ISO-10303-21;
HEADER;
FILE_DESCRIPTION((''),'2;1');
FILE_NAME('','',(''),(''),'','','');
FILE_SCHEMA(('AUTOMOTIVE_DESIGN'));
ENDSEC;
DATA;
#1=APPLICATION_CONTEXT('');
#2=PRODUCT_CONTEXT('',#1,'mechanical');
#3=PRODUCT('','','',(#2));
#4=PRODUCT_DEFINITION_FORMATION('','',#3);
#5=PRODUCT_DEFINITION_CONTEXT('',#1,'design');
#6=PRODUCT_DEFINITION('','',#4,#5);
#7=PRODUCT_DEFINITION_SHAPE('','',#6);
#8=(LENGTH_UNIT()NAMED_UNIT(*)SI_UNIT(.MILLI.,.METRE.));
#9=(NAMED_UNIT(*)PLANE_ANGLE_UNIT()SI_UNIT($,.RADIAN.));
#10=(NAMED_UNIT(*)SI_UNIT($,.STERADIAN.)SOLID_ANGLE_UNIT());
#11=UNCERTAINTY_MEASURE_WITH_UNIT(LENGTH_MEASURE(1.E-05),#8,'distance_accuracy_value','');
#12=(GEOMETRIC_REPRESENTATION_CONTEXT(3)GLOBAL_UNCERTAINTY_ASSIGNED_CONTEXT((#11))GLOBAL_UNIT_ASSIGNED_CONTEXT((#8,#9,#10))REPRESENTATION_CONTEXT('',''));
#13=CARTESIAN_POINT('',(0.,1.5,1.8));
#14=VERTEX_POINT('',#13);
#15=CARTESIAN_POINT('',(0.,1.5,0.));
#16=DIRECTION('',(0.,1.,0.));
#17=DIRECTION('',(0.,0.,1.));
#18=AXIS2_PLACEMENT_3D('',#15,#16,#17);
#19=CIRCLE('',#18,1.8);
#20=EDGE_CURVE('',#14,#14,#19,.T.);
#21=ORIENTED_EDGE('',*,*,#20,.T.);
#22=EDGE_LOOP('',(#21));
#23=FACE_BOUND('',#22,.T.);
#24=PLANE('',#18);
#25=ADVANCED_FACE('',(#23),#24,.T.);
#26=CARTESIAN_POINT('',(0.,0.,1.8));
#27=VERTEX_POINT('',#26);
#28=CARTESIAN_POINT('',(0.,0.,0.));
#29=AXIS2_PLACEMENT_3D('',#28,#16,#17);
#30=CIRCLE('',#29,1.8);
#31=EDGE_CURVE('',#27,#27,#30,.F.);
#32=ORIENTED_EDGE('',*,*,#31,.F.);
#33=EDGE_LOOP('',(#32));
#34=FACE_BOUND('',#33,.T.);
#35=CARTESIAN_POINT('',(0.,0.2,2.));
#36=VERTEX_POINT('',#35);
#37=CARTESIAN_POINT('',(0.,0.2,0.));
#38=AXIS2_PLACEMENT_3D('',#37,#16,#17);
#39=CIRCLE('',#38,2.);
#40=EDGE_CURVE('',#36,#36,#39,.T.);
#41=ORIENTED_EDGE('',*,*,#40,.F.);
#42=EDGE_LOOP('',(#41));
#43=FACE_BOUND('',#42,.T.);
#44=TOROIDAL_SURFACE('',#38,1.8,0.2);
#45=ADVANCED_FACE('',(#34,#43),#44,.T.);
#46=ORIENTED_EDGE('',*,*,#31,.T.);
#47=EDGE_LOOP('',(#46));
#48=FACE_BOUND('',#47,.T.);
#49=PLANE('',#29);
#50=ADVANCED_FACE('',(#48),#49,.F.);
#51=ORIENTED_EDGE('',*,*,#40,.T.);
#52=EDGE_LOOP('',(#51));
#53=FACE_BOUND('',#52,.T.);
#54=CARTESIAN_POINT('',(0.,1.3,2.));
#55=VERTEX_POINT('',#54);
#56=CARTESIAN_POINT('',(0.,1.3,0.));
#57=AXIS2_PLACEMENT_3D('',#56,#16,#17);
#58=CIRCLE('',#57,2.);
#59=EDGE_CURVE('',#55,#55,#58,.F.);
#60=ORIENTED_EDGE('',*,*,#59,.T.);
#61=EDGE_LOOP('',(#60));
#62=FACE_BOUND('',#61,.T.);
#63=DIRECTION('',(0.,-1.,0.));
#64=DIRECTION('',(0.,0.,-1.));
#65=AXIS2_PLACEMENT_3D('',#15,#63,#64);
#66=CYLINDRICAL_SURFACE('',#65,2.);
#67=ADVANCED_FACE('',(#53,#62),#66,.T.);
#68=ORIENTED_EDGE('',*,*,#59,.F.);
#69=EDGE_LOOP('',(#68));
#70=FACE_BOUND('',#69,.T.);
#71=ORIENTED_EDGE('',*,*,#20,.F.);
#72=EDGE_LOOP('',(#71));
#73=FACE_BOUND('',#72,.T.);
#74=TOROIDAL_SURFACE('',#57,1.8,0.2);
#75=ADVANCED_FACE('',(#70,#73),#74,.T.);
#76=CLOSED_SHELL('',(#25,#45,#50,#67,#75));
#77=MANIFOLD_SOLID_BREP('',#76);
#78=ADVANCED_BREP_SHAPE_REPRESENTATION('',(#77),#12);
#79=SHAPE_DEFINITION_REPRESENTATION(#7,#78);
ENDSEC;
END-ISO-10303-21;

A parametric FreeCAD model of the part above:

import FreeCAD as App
import Part
import Sketcher
from FreeCAD import Vector


def edges_at(feature, points):
    """Names of the edges that pass closest to the given points."""
    edges = feature.Shape.Edges
    near = lambda p: min(range(len(edges)), key=lambda i: edges[i].distToShape(Part.Vertex(*p))[0])
    return sorted({f"Edge{near(p) + 1}" for p in points})

doc = App.newDocument("Part")
body = doc.addObject("PartDesign::Body", "Body")

sketch1 = doc.addObject("Sketcher::SketchObject", "Sketch")
body.addObject(sketch1)
sketch1.AttachmentSupport = (doc.XZ_Plane, [""])
sketch1.MapMode = "FlatFace"
sketch1.addGeometry(Part.Circle(Vector(0, 0, 0), Vector(0, 0, 1), 2), False)
sketch1.addConstraint([
    Sketcher.Constraint("Coincident", 0, 3, -1, 1),
    Sketcher.Constraint("Diameter", 0, 4.0),
])
pad1 = doc.addObject("PartDesign::Pad", "Pad")
body.addObject(pad1)
pad1.Profile = sketch1
pad1.Length = 1.5
pad1.Reversed = True
doc.recompute()

fillet = doc.addObject("PartDesign::Fillet", "Fillet")
body.addObject(fillet)
fillet.Base = (pad1, edges_at(pad1, [(-2, 0, 0), (-2, 1.5, 0)]))
fillet.Radius = 0.2

doc.recompute()
